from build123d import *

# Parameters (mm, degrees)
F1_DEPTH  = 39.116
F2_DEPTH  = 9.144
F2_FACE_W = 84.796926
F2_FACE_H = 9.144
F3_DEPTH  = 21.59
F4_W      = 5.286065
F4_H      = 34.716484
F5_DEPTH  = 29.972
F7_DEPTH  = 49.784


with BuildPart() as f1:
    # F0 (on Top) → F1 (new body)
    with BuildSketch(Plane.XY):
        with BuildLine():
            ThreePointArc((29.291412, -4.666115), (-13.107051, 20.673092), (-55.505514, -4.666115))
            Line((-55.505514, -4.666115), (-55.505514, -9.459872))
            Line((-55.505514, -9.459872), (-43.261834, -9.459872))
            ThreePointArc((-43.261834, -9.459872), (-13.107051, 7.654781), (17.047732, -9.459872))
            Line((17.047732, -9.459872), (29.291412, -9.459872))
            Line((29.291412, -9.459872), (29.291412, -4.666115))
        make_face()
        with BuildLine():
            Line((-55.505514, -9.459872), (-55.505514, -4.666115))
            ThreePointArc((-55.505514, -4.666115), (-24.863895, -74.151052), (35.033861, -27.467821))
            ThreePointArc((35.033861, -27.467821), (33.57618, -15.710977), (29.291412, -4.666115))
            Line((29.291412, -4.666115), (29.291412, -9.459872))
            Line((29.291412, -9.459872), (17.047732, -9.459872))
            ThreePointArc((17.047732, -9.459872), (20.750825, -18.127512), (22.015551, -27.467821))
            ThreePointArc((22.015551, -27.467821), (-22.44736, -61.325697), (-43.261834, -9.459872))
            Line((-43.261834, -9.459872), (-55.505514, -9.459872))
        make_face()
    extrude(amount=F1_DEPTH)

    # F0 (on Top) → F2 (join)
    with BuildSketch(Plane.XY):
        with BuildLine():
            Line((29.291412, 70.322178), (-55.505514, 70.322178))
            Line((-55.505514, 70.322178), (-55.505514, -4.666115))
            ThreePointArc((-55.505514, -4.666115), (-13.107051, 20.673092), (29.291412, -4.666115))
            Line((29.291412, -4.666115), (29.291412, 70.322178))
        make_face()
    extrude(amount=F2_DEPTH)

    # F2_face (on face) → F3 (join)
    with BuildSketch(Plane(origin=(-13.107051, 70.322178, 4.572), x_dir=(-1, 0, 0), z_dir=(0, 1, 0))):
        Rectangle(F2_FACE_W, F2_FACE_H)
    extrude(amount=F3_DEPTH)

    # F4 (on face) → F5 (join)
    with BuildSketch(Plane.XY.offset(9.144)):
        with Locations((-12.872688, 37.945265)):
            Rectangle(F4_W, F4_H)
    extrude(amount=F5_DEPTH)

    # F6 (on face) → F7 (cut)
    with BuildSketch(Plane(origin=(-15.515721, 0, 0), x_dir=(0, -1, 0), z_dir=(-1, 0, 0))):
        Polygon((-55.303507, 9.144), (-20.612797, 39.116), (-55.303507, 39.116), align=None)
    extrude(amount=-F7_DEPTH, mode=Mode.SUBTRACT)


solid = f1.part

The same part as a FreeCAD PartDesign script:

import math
import FreeCAD as App
import Part
import Sketcher

V = App.Vector
Q = App.Units.Quantity

doc = App.newDocument("Part")
params = doc.addObject("Spreadsheet::Sheet", "Params")
for row, (alias, value) in enumerate([
    ("pad1_length", "1.54 in"),
    ("pad2_length", "0.36 in"),
    ("sketch3_height", "0.36 in"),
    ("pad3_length", "0.85 in"),
    ("pad4_length", "1.18 in"),
    ("sketch5_height", "1.18 in"),
    ("pocket1_length", "1.96 in"),
], start=1):
    params.set(f"A{row}", alias)
    params.set(f"B{row}", "=" + value)
    params.setAlias(f"B{row}", alias)

body = doc.addObject("PartDesign::Body", "Body")

# Sketch on XY plane
sketch1 = doc.addObject("Sketcher::SketchObject", "Sketch")
body.addObject(sketch1)
sketch1.AttachmentSupport = (doc.XY_Plane, [""])
sketch1.MapMode = "FlatFace"
sketch1.addGeometry([
    Part.ArcOfCircle(Part.Circle(V(-13.107051, -27.46782, 0), V(0, 0, 1), 48.140912), math.radians(28.271167), math.radians(151.728833)),  # 0
    Part.ArcOfCircle(Part.Circle(V(-13.107051, -27.467821, 0), V(0, 0, 1), 48.140912), math.radians(151.728832), math.radians(360)),  # 1
    Part.ArcOfCircle(Part.Circle(V(-13.10705, -27.46782, 0), V(0, 0, 1), 48.140911), math.radians(-0.000002), math.radians(28.271166)),  # 2
    Part.ArcOfCircle(Part.Circle(V(-13.107051, -27.467821, 0), V(0, 0, 1), 35.122602), math.radians(30.844966), math.radians(149.155034)),  # 3
    Part.ArcOfCircle(Part.Circle(V(-13.107062, -27.467824, 0), V(0, 0, 1), 35.122613), math.radians(0.000005), math.radians(30.844962)),  # 4
    Part.ArcOfCircle(Part.Circle(V(-13.107051, -27.467821, 0), V(0, 0, 1), 35.122602), math.radians(149.155034), math.radians(360)),  # 5
], False)
sketch1.addConstraint([
    Sketcher.Constraint("Tangent", 0, 2, 1, 1),
    Sketcher.Constraint("Tangent", 1, 2, 2, 1),
    Sketcher.Constraint("Tangent", 2, 2, 0, 1),
    Sketcher.Constraint("Tangent", 3, 1, 4, 2),
    Sketcher.Constraint("Tangent", 4, 1, 5, 2),
    Sketcher.Constraint("Tangent", 5, 1, 3, 2),
    Sketcher.Constraint("Coincident", 3, 3, 0, 3),
    Sketcher.Constraint("Horizontal", 5, 3, 1, 2),
    Sketcher.Constraint("Horizontal", 0, 2, 2, 2),
    Sketcher.Constraint("Horizontal", 1, 2, 4, 1),
    Sketcher.Constraint("Horizontal", 3, 1, 5, 1),
    Sketcher.Constraint("Radius", 3, Q("35.122602 mm")),
    Sketcher.Constraint("Radius", 2, Q("48.140911 mm")),
    Sketcher.Constraint("DistanceX", 0, 3, -1, 1, Q("13.107051 mm")),
    Sketcher.Constraint("DistanceY", 0, 3, -1, 1, Q("27.46782 mm")),
    Sketcher.Constraint("DistanceX", -1, 1, 2, 2, Q("29.291412 mm")),
    Sketcher.Constraint("DistanceX", -1, 1, 3, 1, Q("17.047732 mm")),
])
pad1 = doc.addObject("PartDesign::Pad", "Pad")
body.addObject(pad1)
pad1.Profile = sketch1
pad1.setExpression("Length", "Params.pad1_length")

# Sketch on XY plane
sketch2 = doc.addObject("Sketcher::SketchObject", "Sketch001")
body.addObject(sketch2)
sketch2.AttachmentSupport = (doc.XY_Plane, [""])
sketch2.MapMode = "FlatFace"
sketch2.addGeometry([
    Part.LineSegment(V(29.291412, 70.322178, 0), V(-55.505514, 70.322178, 0)),
    Part.LineSegment(V(-55.505514, 70.322178, 0), V(-55.505514, -4.666115, 0)),
    Part.ArcOfCircle(Part.Circle(V(-13.107051, -27.46782, 0), V(0, 0, 1), 48.140912), math.radians(28.271167), math.radians(151.728833)),
    Part.LineSegment(V(29.291412, -4.666115, 0), V(29.291412, 70.322178, 0)),
], False)
sketch2.addConstraint([
    Sketcher.Constraint("Coincident", 0, 2, 1, 1),
    Sketcher.Constraint("Coincident", 1, 2, 2, 2),
    Sketcher.Constraint("Coincident", 2, 1, 3, 1),
    Sketcher.Constraint("Coincident", 3, 2, 0, 1),
    Sketcher.Constraint("Horizontal", 0),
    Sketcher.Constraint("Vertical", 1),
    Sketcher.Constraint("Vertical", 3),
    Sketcher.Constraint("Horizontal", 1, 2, 2, 1),
    Sketcher.Constraint("DistanceY", 2, 3, 0, 2, Q("3.8499999 in")),
    Sketcher.Constraint("Radius", 2, Q("48.140912 mm")),
    Sketcher.Constraint("DistanceX", 0, 2, 0, 1, Q("84.796926 mm")),
    Sketcher.Constraint("DistanceX", 2, 3, -1, 1, Q("13.107051 mm")),
    Sketcher.Constraint("DistanceY", 2, 3, -1, 1, Q("27.46782 mm")),
])
pad2 = doc.addObject("PartDesign::Pad", "Pad001")
body.addObject(pad2)
pad2.Profile = sketch2
pad2.setExpression("Length", "Params.pad2_length")

# Sketch on XZ plane
sketch3 = doc.addObject("Sketcher::SketchObject", "Sketch002")
body.addObject(sketch3)
sketch3.AttachmentSupport = (doc.XZ_Plane, [""])
sketch3.MapMode = "FlatFace"
sketch3.AttachmentOffset = App.Placement(V(0, 0, -70.322178), App.Rotation())
sketch3.addGeometry([
    Part.LineSegment(V(29.291412, 9.144, 0), V(29.291412, 0, 0)),
    Part.LineSegment(V(29.291412, 0, 0), V(-55.505514, 0, 0)),
    Part.LineSegment(V(-55.505514, 0, 0), V(-55.505514, 9.144, 0)),
    Part.LineSegment(V(-55.505514, 9.144, 0), V(29.291412, 9.144, 0)),
], False)
sketch3.addConstraint([
    Sketcher.Constraint("Coincident", 0, 2, 1, 1),
    Sketcher.Constraint("Coincident", 1, 2, 2, 1),
    Sketcher.Constraint("Coincident", 2, 2, 3, 1),
    Sketcher.Constraint("Coincident", 3, 2, 0, 1),
    Sketcher.Constraint("Vertical", 0),
    Sketcher.Constraint("Horizontal", 1),
    Sketcher.Constraint("Vertical", 2),
    Sketcher.Constraint("Horizontal", 3),
    Sketcher.Constraint("PointOnObject", 0, 2, -1),
    Sketcher.Constraint("DistanceY", 0, 2, 0, 1, Q("0.36 in")),
    Sketcher.Constraint("DistanceX", 1, 2, 1, 1, Q("84.796926 mm")),
    Sketcher.Constraint("DistanceX", -1, 1, 0, 2, Q("29.291412 mm")),
])
sketch3.setExpression("Constraints[9]", "Params.sketch3_height")
pad3 = doc.addObject("PartDesign::Pad", "Pad002")
body.addObject(pad3)
pad3.Profile = sketch3
pad3.setExpression("Length", "Params.pad3_length")
pad3.Reversed = True

# Sketch on XY plane
sketch4 = doc.addObject("Sketcher::SketchObject", "Sketch003")
body.addObject(sketch4)
sketch4.AttachmentSupport = (doc.XY_Plane, [""])
sketch4.MapMode = "FlatFace"
sketch4.AttachmentOffset = App.Placement(V(0, 0, 0.36 * 25.4), App.Rotation())
sketch4.addGeometry([
    Part.LineSegment(V(-15.515721, 55.303507, 0), V(-15.515721, 20.587023, 0)),
    Part.LineSegment(V(-15.515721, 20.587023, 0), V(-10.229655, 20.587023, 0)),
    Part.LineSegment(V(-10.229655, 20.587023, 0), V(-10.229655, 55.303507, 0)),
    Part.LineSegment(V(-10.229655, 55.303507, 0), V(-15.515721, 55.303507, 0)),
], False)
sketch4.addConstraint([
    Sketcher.Constraint("Coincident", 0, 2, 1, 1),
    Sketcher.Constraint("Coincident", 1, 2, 2, 1),
    Sketcher.Constraint("Coincident", 2, 2, 3, 1),
    Sketcher.Constraint("Coincident", 3, 2, 0, 1),
    Sketcher.Constraint("Vertical", 0),
    Sketcher.Constraint("Horizontal", 1),
    Sketcher.Constraint("Vertical", 2),
    Sketcher.Constraint("Horizontal", 3),
    Sketcher.Constraint("DistanceX", 1, 1, 1, 2, Q("5.286065 mm")),
    Sketcher.Constraint("DistanceY", 0, 2, 0, 1, Q("34.716484 mm")),
    Sketcher.Constraint("DistanceX", 0, 2, -1, 1, Q("15.515721 mm")),
    Sketcher.Constraint("DistanceY", -1, 1, 0, 2, Q("20.587023 mm")),
])
pad4 = doc.addObject("PartDesign::Pad", "Pad003")
body.addObject(pad4)
pad4.Profile = sketch4
pad4.setExpression("Length", "Params.pad4_length")

# Sketch on YZ plane
sketch5 = doc.addObject("Sketcher::SketchObject", "Sketch004")
body.addObject(sketch5)
sketch5.AttachmentSupport = (doc.YZ_Plane, [""])
sketch5.MapMode = "FlatFace"
sketch5.AttachmentOffset = App.Placement(V(0, 0, -15.515721), App.Rotation())
sketch5.addGeometry([
    Part.LineSegment(V(55.303507, 9.144, 0), V(20.612797, 39.116, 0)),
    Part.LineSegment(V(20.612797, 39.116, 0), V(55.303507, 39.116, 0)),
    Part.LineSegment(V(55.303507, 39.116, 0), V(55.303507, 9.144, 0)),
], False)
sketch5.addConstraint([
    Sketcher.Constraint("Coincident", 0, 2, 1, 1),
    Sketcher.Constraint("Coincident", 1, 2, 2, 1),
    Sketcher.Constraint("Coincident", 2, 2, 0, 1),
    Sketcher.Constraint("Horizontal", 1),
    Sketcher.Constraint("Vertical", 2),
    Sketcher.Constraint("DistanceY", 2, 2, 2, 1, Q("1.18 in")),
    Sketcher.Constraint("DistanceY", -1, 1, 0, 2, Q("1.54 in")),
    Sketcher.Constraint("DistanceX", 1, 1, 1, 2, Q("34.69071 mm")),
    Sketcher.Constraint("DistanceX", -1, 1, 0, 2, Q("20.612797 mm")),
])
sketch5.setExpression("Constraints[5]", "Params.sketch5_height")
pocket1 = doc.addObject("PartDesign::Pocket", "Pocket")
body.addObject(pocket1)
pocket1.Profile = sketch5
pocket1.setExpression("Length", "Params.pocket1_length")
pocket1.Reversed = True

doc.recompute()
